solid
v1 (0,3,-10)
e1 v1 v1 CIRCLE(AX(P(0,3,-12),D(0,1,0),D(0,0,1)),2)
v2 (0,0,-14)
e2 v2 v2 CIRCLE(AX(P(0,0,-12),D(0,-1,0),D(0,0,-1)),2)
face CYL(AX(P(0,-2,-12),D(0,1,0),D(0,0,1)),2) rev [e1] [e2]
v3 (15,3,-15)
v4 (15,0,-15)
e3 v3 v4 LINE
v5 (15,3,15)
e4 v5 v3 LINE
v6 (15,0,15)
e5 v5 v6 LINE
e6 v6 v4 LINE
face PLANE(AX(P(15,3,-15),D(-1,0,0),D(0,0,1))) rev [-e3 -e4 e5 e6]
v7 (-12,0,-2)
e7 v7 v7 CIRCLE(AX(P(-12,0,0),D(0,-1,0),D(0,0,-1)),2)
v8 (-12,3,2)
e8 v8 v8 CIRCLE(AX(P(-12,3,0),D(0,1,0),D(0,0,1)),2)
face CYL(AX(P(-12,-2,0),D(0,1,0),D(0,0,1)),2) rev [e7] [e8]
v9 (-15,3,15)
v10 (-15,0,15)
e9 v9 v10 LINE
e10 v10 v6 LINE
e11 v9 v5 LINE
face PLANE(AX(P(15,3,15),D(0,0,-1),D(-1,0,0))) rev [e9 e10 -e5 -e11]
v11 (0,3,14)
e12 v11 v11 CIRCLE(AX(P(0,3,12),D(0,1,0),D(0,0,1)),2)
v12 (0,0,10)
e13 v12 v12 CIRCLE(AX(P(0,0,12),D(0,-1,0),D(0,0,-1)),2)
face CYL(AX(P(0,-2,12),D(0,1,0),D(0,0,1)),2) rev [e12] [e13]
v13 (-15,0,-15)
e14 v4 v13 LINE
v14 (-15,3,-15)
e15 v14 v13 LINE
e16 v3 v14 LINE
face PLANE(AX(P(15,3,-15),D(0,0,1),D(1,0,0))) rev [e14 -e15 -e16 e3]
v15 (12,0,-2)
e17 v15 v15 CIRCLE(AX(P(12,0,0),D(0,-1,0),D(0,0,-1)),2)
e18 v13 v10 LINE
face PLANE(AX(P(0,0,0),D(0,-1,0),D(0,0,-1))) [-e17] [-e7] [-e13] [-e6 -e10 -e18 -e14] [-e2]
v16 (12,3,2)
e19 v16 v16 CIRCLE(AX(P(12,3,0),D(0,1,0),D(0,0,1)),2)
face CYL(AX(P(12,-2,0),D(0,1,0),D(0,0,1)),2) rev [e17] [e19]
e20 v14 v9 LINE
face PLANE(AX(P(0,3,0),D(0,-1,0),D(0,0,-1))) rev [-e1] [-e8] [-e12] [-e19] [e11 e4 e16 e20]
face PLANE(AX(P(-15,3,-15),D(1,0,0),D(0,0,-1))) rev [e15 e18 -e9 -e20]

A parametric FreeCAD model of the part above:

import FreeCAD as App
import Part
import Sketcher

V = App.Vector


def add_polygon(sketch, points):
    """Adds a closed chain of lines whose ends are joined by coincident constraints."""
    first, n = sketch.GeometryCount, len(points)
    for a, b in zip(points, points[1:] + points[:1]):
        sketch.addGeometry(Part.LineSegment(App.Vector(*a, 0), App.Vector(*b, 0)), False)
    for i in range(n):
        sketch.addConstraint(Sketcher.Constraint("Coincident", first + i, 2, first + (i + 1) % n, 1))

doc = App.newDocument("Part")
body = doc.addObject("PartDesign::Body", "Body")

# Sketch on XZ plane
sketch1 = body.newObject("Sketcher::SketchObject", "Sketch")
sketch1.AttachmentSupport = (doc.getObject("XZ_Plane"), [""])
sketch1.MapMode = "FlatFace"
add_polygon(sketch1, [(-15, -15), (-15, 15), (15, 15), (15, -15)])  # lines 0-3
sketch1.addConstraint([
    Sketcher.Constraint("Vertical", 0),
    Sketcher.Constraint("Horizontal", 1),
    Sketcher.Constraint("Vertical", 2),
    Sketcher.Constraint("Horizontal", 3),
    Sketcher.Constraint("Symmetric", 0, 2, 2, 2, -1, 1),
    Sketcher.Constraint("Equal", 3, 0),
    Sketcher.Constraint("DistanceX", 1, 1, 1, 2, 30.0),
])
pad1 = body.newObject("PartDesign::Pad", "Pad")
pad1.Profile = sketch1
pad1.Length = 3
pad1.Reversed = True

# Sketch on XZ plane
sketch2 = body.newObject("Sketcher::SketchObject", "Sketch001")
sketch2.AttachmentSupport = (doc.getObject("XZ_Plane"), [""])
sketch2.MapMode = "FlatFace"
sketch2.AttachmentOffset = App.Placement(V(0, 0, -3), App.Rotation())
sketch2.addGeometry([
    Part.Circle(V(-12, 0, 0), V(0, 0, 1), 2),
    Part.Circle(V(12, 0, 0), V(0, 0, 1), 2),
    Part.Circle(V(0, -12, 0), V(0, 0, 1), 2),
    Part.Circle(V(0, 12, 0), V(0, 0, 1), 2),
], False)
sketch2.addConstraint([
    Sketcher.Constraint("Equal", 0, 1),
    Sketcher.Constraint("Equal", 1, 2),
    Sketcher.Constraint("Equal", 2, 3),
    Sketcher.Constraint("Symmetric", 0, 3, 1, 3, -1, 1),
    Sketcher.Constraint("Symmetric", 2, 3, 3, 3, -1, 1),
    Sketcher.Constraint("PointOnObject", 0, 3, -1),
    Sketcher.Constraint("PointOnObject", 2, 3, -2),
    Sketcher.Constraint("Diameter", 0, 4.0),
    Sketcher.Constraint("DistanceX", 0, 3, -1, 1, 12.0),
    Sketcher.Constraint("DistanceY", 2, 3, -1, 1, 12.0),
])
pocket1 = body.newObject("PartDesign::Pocket", "Pocket")
pocket1.Profile = sketch2
pocket1.Length = 5
pocket1.Reversed = True

doc.recompute()
